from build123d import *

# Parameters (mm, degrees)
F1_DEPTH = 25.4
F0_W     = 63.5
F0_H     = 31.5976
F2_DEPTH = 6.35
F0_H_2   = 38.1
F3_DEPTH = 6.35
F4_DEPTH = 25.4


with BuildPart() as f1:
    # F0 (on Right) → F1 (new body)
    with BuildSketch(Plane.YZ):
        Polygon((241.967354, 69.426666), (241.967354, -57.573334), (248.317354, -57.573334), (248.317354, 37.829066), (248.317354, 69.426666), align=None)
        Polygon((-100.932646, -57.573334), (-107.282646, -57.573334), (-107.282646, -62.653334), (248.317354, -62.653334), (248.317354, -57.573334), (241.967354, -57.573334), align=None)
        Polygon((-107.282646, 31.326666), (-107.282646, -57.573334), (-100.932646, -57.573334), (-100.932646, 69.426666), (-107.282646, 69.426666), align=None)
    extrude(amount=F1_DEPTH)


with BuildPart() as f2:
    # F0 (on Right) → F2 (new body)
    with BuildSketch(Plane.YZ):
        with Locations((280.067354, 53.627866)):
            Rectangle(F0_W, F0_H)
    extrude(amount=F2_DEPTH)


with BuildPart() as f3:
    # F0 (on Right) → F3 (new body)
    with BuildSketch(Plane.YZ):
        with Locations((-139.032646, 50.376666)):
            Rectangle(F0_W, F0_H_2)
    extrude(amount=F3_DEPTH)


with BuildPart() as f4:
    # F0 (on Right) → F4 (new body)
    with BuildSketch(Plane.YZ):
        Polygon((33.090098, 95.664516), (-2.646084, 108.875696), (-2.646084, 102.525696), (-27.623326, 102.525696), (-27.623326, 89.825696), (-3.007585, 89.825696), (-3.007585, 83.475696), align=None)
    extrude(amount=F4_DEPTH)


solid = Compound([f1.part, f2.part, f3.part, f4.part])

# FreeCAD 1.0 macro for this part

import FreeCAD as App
import Part
import Sketcher
from FreeCAD import Vector
Q = App.Units.Quantity

doc = App.newDocument("Part")
body = doc.addObject("PartDesign::Body", "Body")

# Sketch on YZ plane
sketch1 = body.newObject("Sketcher::SketchObject", "Sketch")
sketch1.AttachmentSupport = (doc.getObject("YZ_Plane"), [""])
sketch1.MapMode = "FlatFace"
sketch1.addGeometry([
    Part.LineSegment(Vector(242, 69, 0), Vector(242, -58, 0)),  # 0
    Part.LineSegment(Vector(242, -58, 0), Vector(-101, -58, 0)),  # 1
    Part.LineSegment(Vector(-101, -58, 0), Vector(-101, 69, 0)),  # 2
    Part.LineSegment(Vector(-101, 69, 0), Vector(-107, 69, 0)),  # 3
    Part.LineSegment(Vector(-107, 69, 0), Vector(-107, -63, 0)),  # 4
    Part.LineSegment(Vector(-107, -63, 0), Vector(248, -63, 0)),  # 5
    Part.LineSegment(Vector(248, -63, 0), Vector(248, 69, 0)),  # 6
    Part.LineSegment(Vector(248, 69, 0), Vector(242, 69, 0)),  # 7
], False)
sketch1.addConstraint([
    Sketcher.Constraint("Coincident", 0, 2, 1, 1),
    Sketcher.Constraint("Coincident", 1, 2, 2, 1),
    Sketcher.Constraint("Coincident", 2, 2, 3, 1),
    Sketcher.Constraint("Coincident", 3, 2, 4, 1),
    Sketcher.Constraint("Coincident", 4, 2, 5, 1),
    Sketcher.Constraint("Coincident", 5, 2, 6, 1),
    Sketcher.Constraint("Coincident", 6, 2, 7, 1),
    Sketcher.Constraint("Coincident", 7, 2, 0, 1),
    Sketcher.Constraint("Vertical", 0),
    Sketcher.Constraint("Horizontal", 1),
    Sketcher.Constraint("Vertical", 2),
    Sketcher.Constraint("Horizontal", 3),
    Sketcher.Constraint("Vertical", 4),
    Sketcher.Constraint("Horizontal", 5),
    Sketcher.Constraint("Vertical", 6),
    Sketcher.Constraint("Horizontal", 7),
    Sketcher.Constraint("Horizontal", 3, 2, 6, 2),
    Sketcher.Constraint("Equal", 3, 7),
    Sketcher.Constraint("DistanceX", 5, 1, 5, 2, Q("14 in")),
    Sketcher.Constraint("DistanceY", 0, 2, 0, 1, Q("5 in")),
    Sketcher.Constraint("DistanceX", 1, 2, 1, 1, Q("13.5 in")),
    Sketcher.Constraint("DistanceY", 4, 2, 4, 1, Q("5.2 in")),
    Sketcher.Constraint("DistanceX", -1, 1, 0, 2, Q("241.967354 mm")),
    Sketcher.Constraint("DistanceY", 0, 2, -1, 1, Q("57.573334 mm")),
])
pad1 = body.newObject("PartDesign::Pad", "Pad")
pad1.Profile = sketch1
pad1.Length = Q("1 in")
body2 = doc.addObject("PartDesign::Body", "Body001")

# Sketch on YZ plane
sketch2 = body2.newObject("Sketcher::SketchObject", "Sketch001")
sketch2.AttachmentSupport = (doc.getObject("YZ_Plane001"), [""])
sketch2.MapMode = "FlatFace"
sketch2.addGeometry([
    Part.LineSegment(Vector(248, 69, 0), Vector(248, 38, 0)),
    Part.LineSegment(Vector(248, 38, 0), Vector(312, 38, 0)),
    Part.LineSegment(Vector(312, 38, 0), Vector(312, 69, 0)),
    Part.LineSegment(Vector(312, 69, 0), Vector(248, 69, 0)),
], False)
sketch2.addConstraint([
    Sketcher.Constraint("Coincident", 0, 2, 1, 1),
    Sketcher.Constraint("Coincident", 1, 2, 2, 1),
    Sketcher.Constraint("Coincident", 2, 2, 3, 1),
    Sketcher.Constraint("Coincident", 3, 2, 0, 1),
    Sketcher.Constraint("Vertical", 0),
    Sketcher.Constraint("Horizontal", 1),
    Sketcher.Constraint("Vertical", 2),
    Sketcher.Constraint("Horizontal", 3),
    Sketcher.Constraint("DistanceX", 1, 1, 1, 2, Q("2.5 in")),
    Sketcher.Constraint("DistanceY", 0, 2, 0, 1, Q("1.244 in")),
    Sketcher.Constraint("DistanceX", -1, 1, 0, 2, Q("248.317354 mm")),
    Sketcher.Constraint("DistanceY", -1, 1, 0, 2, Q("37.829066 mm")),
])
pad2 = body2.newObject("PartDesign::Pad", "Pad001")
pad2.Profile = sketch2
pad2.Length = Q("0.25 in")
body3 = doc.addObject("PartDesign::Body", "Body002")

# Sketch on YZ plane
sketch3 = body3.newObject("Sketcher::SketchObject", "Sketch002")
sketch3.AttachmentSupport = (doc.getObject("YZ_Plane002"), [""])
sketch3.MapMode = "FlatFace"
sketch3.addGeometry([
    Part.LineSegment(Vector(-171, 69, 0), Vector(-171, 31, 0)),
    Part.LineSegment(Vector(-171, 31, 0), Vector(-107, 31, 0)),
    Part.LineSegment(Vector(-107, 31, 0), Vector(-107, 69, 0)),
    Part.LineSegment(Vector(-107, 69, 0), Vector(-171, 69, 0)),
], False)
sketch3.addConstraint([
    Sketcher.Constraint("Coincident", 0, 2, 1, 1),
    Sketcher.Constraint("Coincident", 1, 2, 2, 1),
    Sketcher.Constraint("Coincident", 2, 2, 3, 1),
    Sketcher.Constraint("Coincident", 3, 2, 0, 1),
    Sketcher.Constraint("Vertical", 0),
    Sketcher.Constraint("Horizontal", 1),
    Sketcher.Constraint("Vertical", 2),
    Sketcher.Constraint("Horizontal", 3),
    Sketcher.Constraint("DistanceX", 1, 1, 1, 2, Q("2.5 in")),
    Sketcher.Constraint("DistanceY", 0, 2, 0, 1, Q("1.5 in")),
    Sketcher.Constraint("DistanceX", 0, 2, -1, 1, Q("170.782646 mm")),
    Sketcher.Constraint("DistanceY", -1, 1, 0, 2, Q("31.326666 mm")),
])
pad3 = body3.newObject("PartDesign::Pad", "Pad002")
pad3.Profile = sketch3
pad3.Length = Q("0.25 in")
body4 = doc.addObject("PartDesign::Body", "Body003")

# Sketch on YZ plane
sketch4 = body4.newObject("Sketcher::SketchObject", "Sketch003")
sketch4.AttachmentSupport = (doc.getObject("YZ_Plane003"), [""])
sketch4.MapMode = "FlatFace"
sketch4.addGeometry([
    Part.LineSegment(Vector(33, 96, 0), Vector(-3, 109, 0)),  # 0
    Part.LineSegment(Vector(-3, 109, 0), Vector(-3, 103, 0)),  # 1
    Part.LineSegment(Vector(-3, 103, 0), Vector(-28, 103, 0)),  # 2
    Part.LineSegment(Vector(-28, 103, 0), Vector(-28, 90, 0)),  # 3
    Part.LineSegment(Vector(-28, 90, 0), Vector(-3, 90, 0)),  # 4
    Part.LineSegment(Vector(-3, 90, 0), Vector(-3, 83, 0)),  # 5
    Part.LineSegment(Vector(-3, 83, 0), Vector(33, 96, 0)),  # 6
], False)
sketch4.addConstraint([
    Sketcher.Constraint("Coincident", 0, 2, 1, 1),
    Sketcher.Constraint("Coincident", 1, 2, 2, 1),
    Sketcher.Constraint("Coincident", 2, 2, 3, 1),
    Sketcher.Constraint("Coincident", 3, 2, 4, 1),
    Sketcher.Constraint("Coincident", 4, 2, 5, 1),
    Sketcher.Constraint("Coincident", 5, 2, 6, 1),
    Sketcher.Constraint("Coincident", 6, 2, 0, 1),
    Sketcher.Constraint("Vertical", 1),
    Sketcher.Constraint("Horizontal", 2),
    Sketcher.Constraint("Vertical", 3),
    Sketcher.Constraint("Horizontal", 4),
    Sketcher.Constraint("Vertical", 5),
    Sketcher.Constraint("Equal", 1, 5),
    Sketcher.Constraint("Equal", 0, 6),
    Sketcher.Constraint("DistanceY", 3, 2, 3, 1, Q("0.5 in")),
    Sketcher.Constraint("DistanceY", 5, 2, 0, 2, Q("1 in")),
    Sketcher.Constraint("Distance", 0, Q("1.5 in")),
    Sketcher.Constraint("DistanceX", 2, 2, 2, 1, Q("24.977242 mm")),
    Sketcher.Constraint("DistanceX", 4, 1, 4, 2, Q("24.615741 mm")),
    Sketcher.Constraint("DistanceX", 0, 2, -1, 1, Q("2.646084 mm")),
    Sketcher.Constraint("DistanceY", -1, 1, 0, 2, Q("108.875696 mm")),
])
pad4 = body4.newObject("PartDesign::Pad", "Pad003")
pad4.Profile = sketch4
pad4.Length = Q("1 in")

doc.recompute()
